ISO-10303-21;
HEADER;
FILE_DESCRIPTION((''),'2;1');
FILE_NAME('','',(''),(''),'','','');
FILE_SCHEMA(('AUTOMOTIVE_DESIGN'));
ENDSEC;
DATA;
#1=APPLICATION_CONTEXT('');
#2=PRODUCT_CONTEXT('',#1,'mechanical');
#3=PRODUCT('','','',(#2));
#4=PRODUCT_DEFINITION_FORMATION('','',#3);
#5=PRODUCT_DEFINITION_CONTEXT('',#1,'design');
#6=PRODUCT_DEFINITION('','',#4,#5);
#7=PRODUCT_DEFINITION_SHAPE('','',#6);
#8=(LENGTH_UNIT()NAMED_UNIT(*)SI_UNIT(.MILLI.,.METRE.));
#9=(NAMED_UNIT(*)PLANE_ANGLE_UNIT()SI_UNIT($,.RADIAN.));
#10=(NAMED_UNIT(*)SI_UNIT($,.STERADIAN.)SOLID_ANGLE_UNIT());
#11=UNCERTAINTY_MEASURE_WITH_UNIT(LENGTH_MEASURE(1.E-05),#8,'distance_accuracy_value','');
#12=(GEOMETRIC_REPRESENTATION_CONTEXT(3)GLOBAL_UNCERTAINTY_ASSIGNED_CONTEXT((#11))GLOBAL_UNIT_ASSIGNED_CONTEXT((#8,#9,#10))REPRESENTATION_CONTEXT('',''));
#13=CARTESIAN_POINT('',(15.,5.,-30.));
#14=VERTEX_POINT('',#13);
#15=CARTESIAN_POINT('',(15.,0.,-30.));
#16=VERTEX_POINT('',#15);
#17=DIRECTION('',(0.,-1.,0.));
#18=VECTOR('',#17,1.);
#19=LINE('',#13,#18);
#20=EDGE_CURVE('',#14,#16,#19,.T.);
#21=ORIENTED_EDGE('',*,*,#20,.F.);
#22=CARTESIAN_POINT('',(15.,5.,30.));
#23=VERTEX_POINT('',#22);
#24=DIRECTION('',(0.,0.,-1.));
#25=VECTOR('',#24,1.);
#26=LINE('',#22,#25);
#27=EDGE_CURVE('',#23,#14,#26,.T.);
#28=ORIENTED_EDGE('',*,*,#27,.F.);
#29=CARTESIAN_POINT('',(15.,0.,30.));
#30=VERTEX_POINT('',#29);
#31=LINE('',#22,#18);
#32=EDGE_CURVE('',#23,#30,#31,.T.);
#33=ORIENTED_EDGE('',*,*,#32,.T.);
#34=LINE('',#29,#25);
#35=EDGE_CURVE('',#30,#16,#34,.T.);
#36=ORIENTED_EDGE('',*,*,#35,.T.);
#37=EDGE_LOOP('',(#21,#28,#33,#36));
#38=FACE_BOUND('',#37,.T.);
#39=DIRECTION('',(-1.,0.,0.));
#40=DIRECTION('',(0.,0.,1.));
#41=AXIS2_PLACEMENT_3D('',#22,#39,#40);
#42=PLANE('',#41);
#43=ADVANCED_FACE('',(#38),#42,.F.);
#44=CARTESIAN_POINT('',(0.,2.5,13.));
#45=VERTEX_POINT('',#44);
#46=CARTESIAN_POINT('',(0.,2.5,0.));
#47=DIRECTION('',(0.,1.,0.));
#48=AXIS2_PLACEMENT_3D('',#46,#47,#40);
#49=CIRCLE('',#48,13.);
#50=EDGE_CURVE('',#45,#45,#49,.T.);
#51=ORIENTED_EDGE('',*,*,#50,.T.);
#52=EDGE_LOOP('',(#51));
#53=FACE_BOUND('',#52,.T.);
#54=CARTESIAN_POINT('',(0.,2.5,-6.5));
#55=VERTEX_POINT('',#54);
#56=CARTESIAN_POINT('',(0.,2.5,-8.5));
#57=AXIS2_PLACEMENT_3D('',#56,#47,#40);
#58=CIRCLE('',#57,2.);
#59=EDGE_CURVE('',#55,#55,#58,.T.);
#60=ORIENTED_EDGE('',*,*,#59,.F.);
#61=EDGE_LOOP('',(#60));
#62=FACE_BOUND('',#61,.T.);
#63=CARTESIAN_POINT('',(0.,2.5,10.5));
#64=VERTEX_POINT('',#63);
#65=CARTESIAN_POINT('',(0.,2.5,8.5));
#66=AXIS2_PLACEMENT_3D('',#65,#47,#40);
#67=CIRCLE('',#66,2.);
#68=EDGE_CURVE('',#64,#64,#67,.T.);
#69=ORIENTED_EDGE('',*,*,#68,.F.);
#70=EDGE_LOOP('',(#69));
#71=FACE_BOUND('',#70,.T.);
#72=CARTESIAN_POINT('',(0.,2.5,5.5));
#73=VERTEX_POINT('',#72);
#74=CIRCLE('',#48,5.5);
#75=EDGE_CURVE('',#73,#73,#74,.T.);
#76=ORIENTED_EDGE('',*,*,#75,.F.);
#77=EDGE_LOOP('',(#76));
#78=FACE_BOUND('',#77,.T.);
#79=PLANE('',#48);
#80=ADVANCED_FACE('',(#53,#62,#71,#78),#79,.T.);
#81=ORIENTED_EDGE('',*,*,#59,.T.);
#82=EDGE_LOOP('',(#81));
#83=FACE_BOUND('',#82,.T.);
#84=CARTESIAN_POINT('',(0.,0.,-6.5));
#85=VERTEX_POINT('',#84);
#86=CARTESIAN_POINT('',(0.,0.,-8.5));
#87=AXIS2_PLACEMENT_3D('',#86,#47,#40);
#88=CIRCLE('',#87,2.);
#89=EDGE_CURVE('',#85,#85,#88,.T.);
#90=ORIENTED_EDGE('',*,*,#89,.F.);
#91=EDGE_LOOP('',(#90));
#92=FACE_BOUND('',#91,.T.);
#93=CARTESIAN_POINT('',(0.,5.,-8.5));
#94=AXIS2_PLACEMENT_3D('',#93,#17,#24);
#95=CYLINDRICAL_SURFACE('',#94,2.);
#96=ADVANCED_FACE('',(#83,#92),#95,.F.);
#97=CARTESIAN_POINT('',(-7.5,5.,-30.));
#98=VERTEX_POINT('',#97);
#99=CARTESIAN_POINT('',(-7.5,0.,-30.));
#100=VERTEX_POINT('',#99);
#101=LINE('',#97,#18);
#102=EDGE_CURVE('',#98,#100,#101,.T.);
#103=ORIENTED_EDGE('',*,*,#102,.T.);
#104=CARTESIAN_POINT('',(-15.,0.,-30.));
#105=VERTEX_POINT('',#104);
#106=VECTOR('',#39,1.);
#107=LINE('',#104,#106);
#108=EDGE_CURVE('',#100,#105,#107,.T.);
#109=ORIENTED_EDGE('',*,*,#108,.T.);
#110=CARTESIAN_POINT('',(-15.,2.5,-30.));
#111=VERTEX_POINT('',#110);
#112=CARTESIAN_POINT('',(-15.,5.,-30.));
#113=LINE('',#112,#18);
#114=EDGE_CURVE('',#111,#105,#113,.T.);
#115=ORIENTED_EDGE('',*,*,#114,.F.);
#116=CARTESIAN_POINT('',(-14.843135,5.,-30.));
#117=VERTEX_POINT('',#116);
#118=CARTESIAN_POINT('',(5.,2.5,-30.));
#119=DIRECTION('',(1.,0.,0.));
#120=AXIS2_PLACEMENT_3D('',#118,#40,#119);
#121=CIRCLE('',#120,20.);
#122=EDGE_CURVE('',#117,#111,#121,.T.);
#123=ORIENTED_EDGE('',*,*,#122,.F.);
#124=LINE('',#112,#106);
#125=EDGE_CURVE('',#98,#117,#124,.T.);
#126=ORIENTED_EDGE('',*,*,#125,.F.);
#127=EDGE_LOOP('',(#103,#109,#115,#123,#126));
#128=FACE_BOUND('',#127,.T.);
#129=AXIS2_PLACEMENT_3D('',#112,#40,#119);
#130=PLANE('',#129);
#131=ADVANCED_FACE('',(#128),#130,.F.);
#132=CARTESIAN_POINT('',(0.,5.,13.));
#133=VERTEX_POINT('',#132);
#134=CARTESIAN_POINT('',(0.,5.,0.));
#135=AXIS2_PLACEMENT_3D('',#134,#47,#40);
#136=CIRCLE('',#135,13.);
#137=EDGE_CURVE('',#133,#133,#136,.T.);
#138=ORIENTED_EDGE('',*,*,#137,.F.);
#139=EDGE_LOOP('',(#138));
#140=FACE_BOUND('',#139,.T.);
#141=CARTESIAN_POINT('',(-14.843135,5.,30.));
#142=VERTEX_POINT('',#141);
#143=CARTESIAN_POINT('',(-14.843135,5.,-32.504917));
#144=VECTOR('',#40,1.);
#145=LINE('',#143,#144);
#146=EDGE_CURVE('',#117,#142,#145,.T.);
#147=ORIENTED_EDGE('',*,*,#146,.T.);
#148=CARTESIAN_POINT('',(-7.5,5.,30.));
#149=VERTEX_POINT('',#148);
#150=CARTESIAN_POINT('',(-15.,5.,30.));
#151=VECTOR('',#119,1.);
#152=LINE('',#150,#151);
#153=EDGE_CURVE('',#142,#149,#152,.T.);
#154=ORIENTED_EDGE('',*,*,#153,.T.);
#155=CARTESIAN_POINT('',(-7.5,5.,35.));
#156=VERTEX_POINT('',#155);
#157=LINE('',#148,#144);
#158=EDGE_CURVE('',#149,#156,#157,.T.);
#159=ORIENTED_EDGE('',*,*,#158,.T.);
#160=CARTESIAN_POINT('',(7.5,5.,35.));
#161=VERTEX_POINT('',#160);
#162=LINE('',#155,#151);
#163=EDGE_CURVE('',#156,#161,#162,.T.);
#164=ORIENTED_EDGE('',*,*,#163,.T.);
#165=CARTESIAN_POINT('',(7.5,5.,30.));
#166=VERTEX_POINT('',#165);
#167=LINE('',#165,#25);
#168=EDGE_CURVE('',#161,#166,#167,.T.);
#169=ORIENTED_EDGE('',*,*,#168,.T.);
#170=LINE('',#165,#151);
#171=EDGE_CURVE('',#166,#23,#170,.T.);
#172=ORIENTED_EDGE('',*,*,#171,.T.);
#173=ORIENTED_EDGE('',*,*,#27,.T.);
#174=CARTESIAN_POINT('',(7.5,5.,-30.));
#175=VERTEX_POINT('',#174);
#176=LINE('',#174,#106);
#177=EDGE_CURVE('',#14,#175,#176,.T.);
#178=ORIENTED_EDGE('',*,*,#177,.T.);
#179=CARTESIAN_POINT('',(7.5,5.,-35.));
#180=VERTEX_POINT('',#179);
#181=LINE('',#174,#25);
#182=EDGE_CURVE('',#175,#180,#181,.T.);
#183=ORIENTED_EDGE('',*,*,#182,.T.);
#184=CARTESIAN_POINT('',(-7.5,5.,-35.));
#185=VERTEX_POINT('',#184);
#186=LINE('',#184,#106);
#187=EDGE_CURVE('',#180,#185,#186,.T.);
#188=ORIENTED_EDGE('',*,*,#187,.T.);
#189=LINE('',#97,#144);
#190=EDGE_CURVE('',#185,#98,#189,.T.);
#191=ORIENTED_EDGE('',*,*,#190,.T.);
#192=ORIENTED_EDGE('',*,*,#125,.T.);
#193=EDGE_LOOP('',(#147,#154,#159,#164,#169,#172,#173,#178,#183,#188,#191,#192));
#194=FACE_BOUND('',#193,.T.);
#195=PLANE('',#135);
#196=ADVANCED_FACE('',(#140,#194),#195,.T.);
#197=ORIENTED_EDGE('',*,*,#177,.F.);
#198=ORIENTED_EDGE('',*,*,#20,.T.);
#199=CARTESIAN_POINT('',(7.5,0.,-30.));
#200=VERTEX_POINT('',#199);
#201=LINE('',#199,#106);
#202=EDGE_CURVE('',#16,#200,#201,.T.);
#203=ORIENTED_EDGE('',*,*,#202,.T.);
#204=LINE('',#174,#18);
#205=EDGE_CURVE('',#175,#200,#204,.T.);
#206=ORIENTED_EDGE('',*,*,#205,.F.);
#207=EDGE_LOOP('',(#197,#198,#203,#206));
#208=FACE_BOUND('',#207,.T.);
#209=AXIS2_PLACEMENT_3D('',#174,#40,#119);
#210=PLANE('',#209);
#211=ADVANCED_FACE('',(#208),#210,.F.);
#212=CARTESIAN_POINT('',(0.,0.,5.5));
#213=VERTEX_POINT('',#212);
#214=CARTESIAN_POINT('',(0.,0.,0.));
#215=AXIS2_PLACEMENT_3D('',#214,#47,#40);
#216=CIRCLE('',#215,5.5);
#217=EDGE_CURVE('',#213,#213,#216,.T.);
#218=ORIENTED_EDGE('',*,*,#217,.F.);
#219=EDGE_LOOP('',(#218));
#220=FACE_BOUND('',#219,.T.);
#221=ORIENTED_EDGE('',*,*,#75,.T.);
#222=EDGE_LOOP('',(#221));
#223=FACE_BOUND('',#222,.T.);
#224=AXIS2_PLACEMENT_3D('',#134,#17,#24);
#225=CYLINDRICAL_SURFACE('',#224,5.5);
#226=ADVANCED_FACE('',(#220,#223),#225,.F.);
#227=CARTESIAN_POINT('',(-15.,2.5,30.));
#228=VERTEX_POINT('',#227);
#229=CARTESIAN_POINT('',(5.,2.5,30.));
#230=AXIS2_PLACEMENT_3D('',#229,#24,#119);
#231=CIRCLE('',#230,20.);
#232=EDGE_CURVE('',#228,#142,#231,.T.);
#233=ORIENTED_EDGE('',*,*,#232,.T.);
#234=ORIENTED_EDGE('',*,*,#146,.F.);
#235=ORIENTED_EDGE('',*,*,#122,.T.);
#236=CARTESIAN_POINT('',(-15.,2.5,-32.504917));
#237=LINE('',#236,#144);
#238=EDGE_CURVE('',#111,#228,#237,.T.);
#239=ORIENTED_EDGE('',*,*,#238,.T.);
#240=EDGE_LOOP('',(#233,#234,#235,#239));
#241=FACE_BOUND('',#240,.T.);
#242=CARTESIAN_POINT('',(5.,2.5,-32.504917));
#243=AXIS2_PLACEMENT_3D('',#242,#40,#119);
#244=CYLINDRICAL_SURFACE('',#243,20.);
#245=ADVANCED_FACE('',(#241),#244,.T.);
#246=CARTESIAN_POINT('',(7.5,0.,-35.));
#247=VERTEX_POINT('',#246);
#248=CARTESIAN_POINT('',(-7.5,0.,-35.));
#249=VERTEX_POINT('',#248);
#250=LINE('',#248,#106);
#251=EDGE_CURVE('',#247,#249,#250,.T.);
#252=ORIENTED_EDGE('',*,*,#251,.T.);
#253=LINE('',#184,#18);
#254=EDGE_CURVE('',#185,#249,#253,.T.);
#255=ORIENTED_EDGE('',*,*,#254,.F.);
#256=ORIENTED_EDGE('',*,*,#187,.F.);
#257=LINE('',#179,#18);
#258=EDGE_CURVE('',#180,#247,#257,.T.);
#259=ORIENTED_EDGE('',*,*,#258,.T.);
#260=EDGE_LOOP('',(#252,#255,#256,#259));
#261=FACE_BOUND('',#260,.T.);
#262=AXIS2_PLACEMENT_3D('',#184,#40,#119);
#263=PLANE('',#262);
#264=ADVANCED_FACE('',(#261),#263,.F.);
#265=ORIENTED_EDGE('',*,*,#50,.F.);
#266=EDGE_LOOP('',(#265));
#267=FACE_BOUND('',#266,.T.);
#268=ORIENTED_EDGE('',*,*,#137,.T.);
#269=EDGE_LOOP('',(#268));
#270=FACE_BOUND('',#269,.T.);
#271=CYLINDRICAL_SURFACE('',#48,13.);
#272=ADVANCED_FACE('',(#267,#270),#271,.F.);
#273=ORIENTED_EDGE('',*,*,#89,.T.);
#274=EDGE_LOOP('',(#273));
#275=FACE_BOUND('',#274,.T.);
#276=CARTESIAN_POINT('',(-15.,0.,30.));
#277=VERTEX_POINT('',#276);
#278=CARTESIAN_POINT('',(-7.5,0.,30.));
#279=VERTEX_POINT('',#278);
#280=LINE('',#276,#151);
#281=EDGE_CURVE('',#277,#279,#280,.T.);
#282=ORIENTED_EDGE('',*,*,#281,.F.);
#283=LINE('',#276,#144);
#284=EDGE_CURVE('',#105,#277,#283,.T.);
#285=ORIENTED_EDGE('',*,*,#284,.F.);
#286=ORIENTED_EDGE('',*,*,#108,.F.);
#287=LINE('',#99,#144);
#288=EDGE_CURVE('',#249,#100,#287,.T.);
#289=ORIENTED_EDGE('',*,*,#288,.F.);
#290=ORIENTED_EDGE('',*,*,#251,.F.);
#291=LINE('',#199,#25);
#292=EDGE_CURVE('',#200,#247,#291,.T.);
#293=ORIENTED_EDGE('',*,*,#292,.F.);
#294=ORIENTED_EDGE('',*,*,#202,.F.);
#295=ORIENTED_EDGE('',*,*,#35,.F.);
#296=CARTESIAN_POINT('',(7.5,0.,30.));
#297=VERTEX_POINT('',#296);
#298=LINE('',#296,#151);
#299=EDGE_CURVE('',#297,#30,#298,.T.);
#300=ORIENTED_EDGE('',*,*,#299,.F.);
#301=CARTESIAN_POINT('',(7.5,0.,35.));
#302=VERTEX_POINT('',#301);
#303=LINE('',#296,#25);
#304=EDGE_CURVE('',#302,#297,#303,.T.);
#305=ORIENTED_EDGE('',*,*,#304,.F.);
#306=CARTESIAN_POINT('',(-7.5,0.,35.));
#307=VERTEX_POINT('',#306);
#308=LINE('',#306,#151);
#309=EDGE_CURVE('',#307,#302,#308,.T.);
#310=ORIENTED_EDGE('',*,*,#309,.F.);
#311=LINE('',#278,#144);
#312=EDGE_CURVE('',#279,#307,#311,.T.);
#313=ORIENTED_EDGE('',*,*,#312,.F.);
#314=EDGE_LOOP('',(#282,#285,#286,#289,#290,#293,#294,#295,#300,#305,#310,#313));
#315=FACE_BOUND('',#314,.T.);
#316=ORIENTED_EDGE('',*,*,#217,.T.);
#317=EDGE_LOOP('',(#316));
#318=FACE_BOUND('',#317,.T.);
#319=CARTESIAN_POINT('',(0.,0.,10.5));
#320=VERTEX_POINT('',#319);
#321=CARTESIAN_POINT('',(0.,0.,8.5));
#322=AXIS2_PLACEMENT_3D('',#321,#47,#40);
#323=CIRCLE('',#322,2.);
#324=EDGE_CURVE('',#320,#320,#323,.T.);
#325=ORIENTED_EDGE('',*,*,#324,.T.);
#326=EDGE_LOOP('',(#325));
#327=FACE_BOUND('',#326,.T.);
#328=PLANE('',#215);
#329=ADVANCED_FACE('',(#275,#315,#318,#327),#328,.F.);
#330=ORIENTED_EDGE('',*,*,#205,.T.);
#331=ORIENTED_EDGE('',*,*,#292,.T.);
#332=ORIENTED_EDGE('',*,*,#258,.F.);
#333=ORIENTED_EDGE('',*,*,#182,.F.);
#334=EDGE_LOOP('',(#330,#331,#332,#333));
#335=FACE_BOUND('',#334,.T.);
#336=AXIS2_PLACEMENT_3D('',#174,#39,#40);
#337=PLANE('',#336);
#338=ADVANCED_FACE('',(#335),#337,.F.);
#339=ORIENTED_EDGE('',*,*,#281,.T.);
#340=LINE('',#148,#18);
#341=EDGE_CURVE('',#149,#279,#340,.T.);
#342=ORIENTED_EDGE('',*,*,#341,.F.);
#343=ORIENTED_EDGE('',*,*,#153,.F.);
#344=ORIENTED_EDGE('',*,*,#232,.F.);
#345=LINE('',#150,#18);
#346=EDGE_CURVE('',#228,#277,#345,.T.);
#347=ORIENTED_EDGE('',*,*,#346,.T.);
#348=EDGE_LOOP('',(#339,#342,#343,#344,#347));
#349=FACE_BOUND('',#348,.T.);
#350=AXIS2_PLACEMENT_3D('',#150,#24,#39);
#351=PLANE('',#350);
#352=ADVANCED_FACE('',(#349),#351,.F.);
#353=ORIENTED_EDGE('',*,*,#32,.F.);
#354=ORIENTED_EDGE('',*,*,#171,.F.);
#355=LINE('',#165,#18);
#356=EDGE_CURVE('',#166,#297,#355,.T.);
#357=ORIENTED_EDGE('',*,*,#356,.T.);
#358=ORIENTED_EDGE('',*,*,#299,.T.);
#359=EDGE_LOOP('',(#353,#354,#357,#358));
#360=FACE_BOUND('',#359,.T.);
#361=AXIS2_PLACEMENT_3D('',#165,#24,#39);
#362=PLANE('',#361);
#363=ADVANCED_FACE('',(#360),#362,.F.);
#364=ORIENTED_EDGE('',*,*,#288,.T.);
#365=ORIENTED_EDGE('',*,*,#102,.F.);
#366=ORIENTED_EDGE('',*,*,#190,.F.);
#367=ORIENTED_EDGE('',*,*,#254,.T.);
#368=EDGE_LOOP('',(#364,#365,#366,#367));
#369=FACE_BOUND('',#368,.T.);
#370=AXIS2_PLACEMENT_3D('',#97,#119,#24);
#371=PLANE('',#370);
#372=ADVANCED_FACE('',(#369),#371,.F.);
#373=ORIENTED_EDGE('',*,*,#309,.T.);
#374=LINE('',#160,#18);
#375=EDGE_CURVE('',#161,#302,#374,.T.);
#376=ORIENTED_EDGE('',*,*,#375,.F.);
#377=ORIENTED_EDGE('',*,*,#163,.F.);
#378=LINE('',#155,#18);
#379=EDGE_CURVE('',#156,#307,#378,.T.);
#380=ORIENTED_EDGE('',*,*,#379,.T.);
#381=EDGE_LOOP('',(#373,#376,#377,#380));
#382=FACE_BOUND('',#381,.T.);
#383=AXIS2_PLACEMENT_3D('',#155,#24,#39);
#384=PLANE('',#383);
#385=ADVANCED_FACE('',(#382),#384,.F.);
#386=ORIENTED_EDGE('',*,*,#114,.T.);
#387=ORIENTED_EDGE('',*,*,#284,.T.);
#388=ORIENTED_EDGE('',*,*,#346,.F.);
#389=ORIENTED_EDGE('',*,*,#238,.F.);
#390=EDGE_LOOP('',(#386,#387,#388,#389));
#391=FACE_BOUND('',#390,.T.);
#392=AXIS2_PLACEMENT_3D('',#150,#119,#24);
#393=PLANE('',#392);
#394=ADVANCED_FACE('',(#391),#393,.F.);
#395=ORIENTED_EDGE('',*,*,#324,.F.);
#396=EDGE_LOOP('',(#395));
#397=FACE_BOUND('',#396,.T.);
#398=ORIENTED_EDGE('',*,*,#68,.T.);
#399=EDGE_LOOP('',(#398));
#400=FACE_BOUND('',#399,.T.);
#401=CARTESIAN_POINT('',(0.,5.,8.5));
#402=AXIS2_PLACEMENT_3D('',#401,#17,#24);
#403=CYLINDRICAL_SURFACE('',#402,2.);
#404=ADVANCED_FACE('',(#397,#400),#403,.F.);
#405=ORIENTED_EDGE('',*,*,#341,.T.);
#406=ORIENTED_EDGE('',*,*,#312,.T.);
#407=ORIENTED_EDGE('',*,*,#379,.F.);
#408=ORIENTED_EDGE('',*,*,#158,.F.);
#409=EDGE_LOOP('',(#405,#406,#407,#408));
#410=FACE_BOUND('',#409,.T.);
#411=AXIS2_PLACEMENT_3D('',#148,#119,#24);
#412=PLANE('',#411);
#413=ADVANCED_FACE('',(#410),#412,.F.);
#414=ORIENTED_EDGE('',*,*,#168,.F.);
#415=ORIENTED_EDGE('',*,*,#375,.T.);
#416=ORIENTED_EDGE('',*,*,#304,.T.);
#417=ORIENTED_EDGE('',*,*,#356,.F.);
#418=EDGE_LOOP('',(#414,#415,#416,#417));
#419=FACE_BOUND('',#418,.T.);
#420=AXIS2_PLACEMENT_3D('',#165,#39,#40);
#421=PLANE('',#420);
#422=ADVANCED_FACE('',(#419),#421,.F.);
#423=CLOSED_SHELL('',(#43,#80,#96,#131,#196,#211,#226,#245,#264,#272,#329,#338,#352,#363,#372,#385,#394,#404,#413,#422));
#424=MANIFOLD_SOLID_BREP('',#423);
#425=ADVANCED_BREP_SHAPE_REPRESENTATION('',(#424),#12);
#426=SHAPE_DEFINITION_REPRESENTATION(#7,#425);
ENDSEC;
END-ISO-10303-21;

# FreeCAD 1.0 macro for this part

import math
import FreeCAD as App
import Part
import Sketcher

V = App.Vector

doc = App.newDocument("Part")
body = doc.addObject("PartDesign::Body", "Body")

# Sketch on XZ plane
sketch1 = body.newObject("Sketcher::SketchObject", "Sketch")
sketch1.AttachmentSupport = (doc.getObject("XZ_Plane"), [""])
sketch1.MapMode = "FlatFace"
sketch1.addGeometry(Part.LineSegment(V(7.5, 30, 0), V(15, 30, 0)), False)
sketch1.addGeometry(Part.LineSegment(V(15, 30, 0), V(15, -30, 0)), False)
sketch1.addGeometry(Part.LineSegment(V(15, -30, 0), V(7.5, -30, 0)), False)
sketch1.addGeometry(Part.LineSegment(V(7.5, -30, 0), V(7.5, -35, 0)), False)
sketch1.addGeometry(Part.LineSegment(V(7.5, -35, 0), V(-7.5, -35, 0)), False)
sketch1.addGeometry(Part.LineSegment(V(-7.5, -35, 0), V(-7.5, -30, 0)), False)
sketch1.addGeometry(Part.LineSegment(V(-7.5, -30, 0), V(-15, -30, 0)), False)
sketch1.addGeometry(Part.LineSegment(V(-15, -30, 0), V(-15, 30, 0)), False)
sketch1.addGeometry(Part.LineSegment(V(-15, 30, 0), V(-7.5, 30, 0)), False)
sketch1.addGeometry(Part.LineSegment(V(-7.5, 30, 0), V(-7.5, 35, 0)), False)
sketch1.addGeometry(Part.LineSegment(V(-7.5, 35, 0), V(7.5, 35, 0)), False)
sketch1.addGeometry(Part.LineSegment(V(7.5, 35, 0), V(7.5, 30, 0)), False)
sketch1.addGeometry(Part.Circle(V(0, 8.5, 0), V(0, 0, 1), 2), False)
sketch1.addGeometry(Part.Circle(V(0, 0, 0), V(0, 0, 1), 5.5), False)
sketch1.addGeometry(Part.Circle(V(0, -8.5, 0), V(0, 0, 1), 2), False)
sketch1.addConstraint(Sketcher.Constraint("Coincident", 0, 2, 1, 1))
sketch1.addConstraint(Sketcher.Constraint("Coincident", 1, 2, 2, 1))
sketch1.addConstraint(Sketcher.Constraint("Coincident", 2, 2, 3, 1))
sketch1.addConstraint(Sketcher.Constraint("Coincident", 3, 2, 4, 1))
sketch1.addConstraint(Sketcher.Constraint("Coincident", 4, 2, 5, 1))
sketch1.addConstraint(Sketcher.Constraint("Coincident", 5, 2, 6, 1))
sketch1.addConstraint(Sketcher.Constraint("Coincident", 6, 2, 7, 1))
sketch1.addConstraint(Sketcher.Constraint("Coincident", 7, 2, 8, 1))
sketch1.addConstraint(Sketcher.Constraint("Coincident", 8, 2, 9, 1))
sketch1.addConstraint(Sketcher.Constraint("Coincident", 9, 2, 10, 1))
sketch1.addConstraint(Sketcher.Constraint("Coincident", 10, 2, 11, 1))
sketch1.addConstraint(Sketcher.Constraint("Coincident", 11, 2, 0, 1))
sketch1.addConstraint(Sketcher.Constraint("Horizontal", 0))
sketch1.addConstraint(Sketcher.Constraint("Vertical", 1))
sketch1.addConstraint(Sketcher.Constraint("Horizontal", 2))
sketch1.addConstraint(Sketcher.Constraint("Vertical", 3))
sketch1.addConstraint(Sketcher.Constraint("Horizontal", 4))
sketch1.addConstraint(Sketcher.Constraint("Vertical", 5))
sketch1.addConstraint(Sketcher.Constraint("Horizontal", 6))
sketch1.addConstraint(Sketcher.Constraint("Vertical", 7))
sketch1.addConstraint(Sketcher.Constraint("Horizontal", 8))
sketch1.addConstraint(Sketcher.Constraint("Vertical", 9))
sketch1.addConstraint(Sketcher.Constraint("Horizontal", 10))
sketch1.addConstraint(Sketcher.Constraint("Vertical", 11))
sketch1.addConstraint(Sketcher.Constraint("Coincident", 13, 3, -1, 1))
sketch1.addConstraint(Sketcher.Constraint("Equal", 12, 14))
sketch1.addConstraint(Sketcher.Constraint("Symmetric", 12, 3, 14, 3, -1, 1))
sketch1.addConstraint(Sketcher.Constraint("Symmetric", 0, 2, 6, 2, -1, 1))
sketch1.addConstraint(Sketcher.Constraint("Symmetric", 2, 2, 8, 2, -1, 1))
sketch1.addConstraint(Sketcher.Constraint("Symmetric", 4, 2, 10, 2, -1, 1))
sketch1.addConstraint(Sketcher.Constraint("Symmetric", 2, 2, 5, 2, -2))
sketch1.addConstraint(Sketcher.Constraint("PointOnObject", 12, 3, -2))
sketch1.addConstraint(Sketcher.Constraint("Diameter", 12, 4.0))
sketch1.addConstraint(Sketcher.Constraint("Diameter", 13, 11.0))
sketch1.addConstraint(Sketcher.Constraint("DistanceX", 4, 2, 4, 1, 15.0))
sketch1.addConstraint(Sketcher.Constraint("DistanceY", 1, 2, 1, 1, 60.0))
sketch1.addConstraint(Sketcher.Constraint("DistanceY", 3, 2, 3, 1, 5.0))
sketch1.addConstraint(Sketcher.Constraint("DistanceX", 0, 1, 0, 2, 7.5))
sketch1.addConstraint(Sketcher.Constraint("DistanceY", 14, 3, 12, 3, 17.0))
pad1 = body.newObject("PartDesign::Pad", "Pad")
pad1.Profile = sketch1
pad1.Length = 5
pad1.Reversed = True

# Sketch on XZ plane
sketch2 = body.newObject("Sketcher::SketchObject", "Sketch001")
sketch2.AttachmentSupport = (doc.getObject("XZ_Plane"), [""])
sketch2.MapMode = "FlatFace"
sketch2.AttachmentOffset = App.Placement(V(0, 0, -5), App.Rotation())
sketch2.addGeometry(Part.Circle(V(0, 0, 0), V(0, 0, 1), 13), False)
sketch2.addConstraint(Sketcher.Constraint("Coincident", 0, 3, -1, 1))
sketch2.addConstraint(Sketcher.Constraint("Diameter", 0, 26.0))
pocket1 = body.newObject("PartDesign::Pocket", "Pocket")
pocket1.Profile = sketch2
pocket1.Length = 2.5
pocket1.Reversed = True

# Sketch on XY plane
sketch3 = body.newObject("Sketcher::SketchObject", "Sketch002")
sketch3.AttachmentSupport = (doc.getObject("XY_Plane"), [""])
sketch3.MapMode = "FlatFace"
sketch3.AttachmentOffset = App.Placement(V(0, 0, 30), App.Rotation())
sketch3.addGeometry(Part.LineSegment(V(-15, 5, 0), V(-15, 2.5, 0)), False)
sketch3.addGeometry(Part.ArcOfCircle(Part.Circle(V(5, 2.5, 0), V(0, 0, 1), 20), math.radians(172.82), math.radians(180)), False)
sketch3.addGeometry(Part.LineSegment(V(-14.84, 5, 0), V(-15, 5, 0)), False)
sketch3.addConstraint(Sketcher.Constraint("Tangent", 0, 2, 1, 2))
sketch3.addConstraint(Sketcher.Constraint("Coincident", 1, 1, 2, 1))
sketch3.addConstraint(Sketcher.Constraint("Coincident", 2, 2, 0, 1))
sketch3.addConstraint(Sketcher.Constraint("Vertical", 0))
sketch3.addConstraint(Sketcher.Constraint("Horizontal", 2))
sketch3.addConstraint(Sketcher.Constraint("Radius", 1, 20.0))
sketch3.addConstraint(Sketcher.Constraint("DistanceY", 0, 2, 0, 1, 2.5))
sketch3.addConstraint(Sketcher.Constraint("DistanceX", -1, 1, 1, 3, 5.0))
sketch3.addConstraint(Sketcher.Constraint("DistanceY", -1, 1, 1, 1, 5.0))
pocket2 = body.newObject("PartDesign::Pocket", "Pocket001")
pocket2.Profile = sketch3
pocket2.Length = 60

doc.recompute()
